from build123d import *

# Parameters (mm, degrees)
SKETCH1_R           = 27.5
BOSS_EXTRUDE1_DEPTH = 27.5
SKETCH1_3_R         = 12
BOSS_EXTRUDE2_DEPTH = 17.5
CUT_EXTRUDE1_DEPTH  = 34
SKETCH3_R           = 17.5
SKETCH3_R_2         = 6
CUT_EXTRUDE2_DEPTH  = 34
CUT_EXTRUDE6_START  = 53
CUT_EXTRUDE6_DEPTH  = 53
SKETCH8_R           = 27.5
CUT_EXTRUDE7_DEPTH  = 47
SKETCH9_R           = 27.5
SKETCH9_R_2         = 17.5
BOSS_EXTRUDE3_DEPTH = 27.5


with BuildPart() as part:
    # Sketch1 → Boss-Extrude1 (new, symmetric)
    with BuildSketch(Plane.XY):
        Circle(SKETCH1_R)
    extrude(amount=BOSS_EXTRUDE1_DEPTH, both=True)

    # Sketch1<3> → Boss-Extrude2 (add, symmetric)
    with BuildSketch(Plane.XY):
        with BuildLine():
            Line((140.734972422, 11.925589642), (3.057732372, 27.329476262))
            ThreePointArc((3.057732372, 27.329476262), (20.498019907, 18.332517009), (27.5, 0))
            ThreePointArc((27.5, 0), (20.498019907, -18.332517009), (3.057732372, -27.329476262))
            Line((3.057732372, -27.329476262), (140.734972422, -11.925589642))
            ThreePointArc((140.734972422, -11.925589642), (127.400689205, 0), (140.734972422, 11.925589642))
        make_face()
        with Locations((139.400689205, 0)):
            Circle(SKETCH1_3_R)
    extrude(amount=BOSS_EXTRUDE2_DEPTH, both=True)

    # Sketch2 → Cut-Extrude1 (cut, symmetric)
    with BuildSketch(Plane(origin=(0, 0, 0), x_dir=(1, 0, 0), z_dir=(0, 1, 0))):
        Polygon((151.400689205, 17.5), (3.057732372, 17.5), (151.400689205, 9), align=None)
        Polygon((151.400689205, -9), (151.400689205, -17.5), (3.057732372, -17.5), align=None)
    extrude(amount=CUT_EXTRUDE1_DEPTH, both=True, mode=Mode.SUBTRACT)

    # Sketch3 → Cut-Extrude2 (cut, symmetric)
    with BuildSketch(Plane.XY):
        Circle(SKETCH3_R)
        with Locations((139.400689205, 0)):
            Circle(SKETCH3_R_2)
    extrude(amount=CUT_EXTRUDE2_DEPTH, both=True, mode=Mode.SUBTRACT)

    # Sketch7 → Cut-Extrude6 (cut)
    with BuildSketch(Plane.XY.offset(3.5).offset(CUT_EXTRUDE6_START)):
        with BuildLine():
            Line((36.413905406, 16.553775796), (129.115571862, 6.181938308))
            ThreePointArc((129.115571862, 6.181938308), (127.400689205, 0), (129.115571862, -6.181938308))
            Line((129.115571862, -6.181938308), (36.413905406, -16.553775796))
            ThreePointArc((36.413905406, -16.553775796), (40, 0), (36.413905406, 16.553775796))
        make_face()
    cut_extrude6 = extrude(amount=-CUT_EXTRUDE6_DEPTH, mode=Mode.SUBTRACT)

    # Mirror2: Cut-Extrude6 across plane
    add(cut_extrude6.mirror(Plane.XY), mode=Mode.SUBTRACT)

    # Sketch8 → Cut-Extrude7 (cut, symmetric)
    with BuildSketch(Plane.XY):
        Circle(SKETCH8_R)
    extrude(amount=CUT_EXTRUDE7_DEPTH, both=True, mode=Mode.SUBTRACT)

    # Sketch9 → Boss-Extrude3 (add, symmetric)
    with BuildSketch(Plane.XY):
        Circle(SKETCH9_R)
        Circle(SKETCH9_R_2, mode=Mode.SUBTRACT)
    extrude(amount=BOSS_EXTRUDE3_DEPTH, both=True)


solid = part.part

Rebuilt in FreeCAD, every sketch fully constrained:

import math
import FreeCAD as App
import Part
import Sketcher
from FreeCAD import Vector


def add_polygon(sketch, points):
    """Adds a closed chain of lines whose ends are joined by coincident constraints."""
    first, n = sketch.GeometryCount, len(points)
    for a, b in zip(points, points[1:] + points[:1]):
        sketch.addGeometry(Part.LineSegment(App.Vector(*a, 0), App.Vector(*b, 0)), False)
    for i in range(n):
        sketch.addConstraint(Sketcher.Constraint("Coincident", first + i, 2, first + (i + 1) % n, 1))

doc = App.newDocument("Part")
body = doc.addObject("PartDesign::Body", "Body")

sketch1 = body.newObject("Sketcher::SketchObject", "Sketch")
sketch1.AttachmentSupport = (doc.getObject("XY_Plane"), [""])
sketch1.MapMode = "FlatFace"
sketch1.addGeometry(Part.Circle(Vector(0, 0, 0), Vector(0, 0, 1), 28), False)
sketch1.addConstraint([
    Sketcher.Constraint("Coincident", 0, 3, -1, 1),
    Sketcher.Constraint("Diameter", 0, 55.0),
])
pad1 = body.newObject("PartDesign::Pad", "Pad")
pad1.Profile = sketch1
pad1.Length = 55
pad1.Midplane = True

sketch2 = body.newObject("Sketcher::SketchObject", "Sketch001")
sketch2.AttachmentSupport = (doc.getObject("XY_Plane"), [""])
sketch2.MapMode = "FlatFace"
sketch2.addGeometry([
    Part.LineSegment(Vector(141, 12, 0), Vector(3, 27, 0)),
    Part.ArcOfCircle(Part.Circle(Vector(0, 0, 0), Vector(0, 0, 1), 28), math.radians(0), math.radians(84)),
    Part.ArcOfCircle(Part.Circle(Vector(0, 0, 0), Vector(0, 0, 1), 28), math.radians(-84), math.radians(0)),
    Part.LineSegment(Vector(3, -27, 0), Vector(141, -12, 0)),
    Part.ArcOfCircle(Part.Circle(Vector(139, 0, 0), Vector(0, 0, 1), 12), math.radians(-84), math.radians(84)),
], False)
sketch2.addConstraint([
    Sketcher.Constraint("Tangent", 0, 2, 1, 2),
    Sketcher.Constraint("Tangent", 1, 1, 2, 2),
    Sketcher.Constraint("Tangent", 2, 1, 3, 1),
    Sketcher.Constraint("Tangent", 3, 2, 4, 1),
    Sketcher.Constraint("Tangent", 4, 2, 0, 1),
    Sketcher.Constraint("Coincident", 1, 3, -1, 1),
    Sketcher.Constraint("Equal", 1, 2),
    Sketcher.Constraint("PointOnObject", 4, 3, -1),
    Sketcher.Constraint("PointOnObject", 1, 1, -1),
    Sketcher.Constraint("Radius", 4, 12.0),
    Sketcher.Constraint("Radius", 1, 27.5),
    Sketcher.Constraint("DistanceX", -1, 1, 4, 3, 139.400689),
])
pad2 = body.newObject("PartDesign::Pad", "Pad001")
pad2.Profile = sketch2
pad2.Length = 35
pad2.Midplane = True

sketch3 = body.newObject("Sketcher::SketchObject", "Sketch002")
sketch3.AttachmentSupport = (doc.getObject("XZ_Plane"), [""])
sketch3.MapMode = "FlatFace"
add_polygon(sketch3, [(151, -18), (3, -18), (151, -9)])
add_polygon(sketch3, [(151, 18), (151, 9), (3, 18)])
sketch3.addConstraint([
    Sketcher.Constraint("Horizontal", 0),
    Sketcher.Constraint("Vertical", 2),
    Sketcher.Constraint("Vertical", 3),
    Sketcher.Constraint("Horizontal", 5),
    Sketcher.Constraint("Symmetric", 1, 2, 3, 2, -1),
    Sketcher.Constraint("Symmetric", 0, 2, 4, 2, -1),
    Sketcher.Constraint("DistanceY", 2, 2, 2, 1, 8.5),
    Sketcher.Constraint("DistanceY", 1, 2, -1, 1, 9.0),
    Sketcher.Constraint("Distance", 1, 148.586281),
    Sketcher.Constraint("DistanceX", -1, 1, 1, 2, 151.400689),
])
pocket1 = body.newObject("PartDesign::Pocket", "Pocket")
pocket1.Profile = sketch3
pocket1.Length = 68
pocket1.Midplane = True

sketch4 = body.newObject("Sketcher::SketchObject", "Sketch003")
sketch4.AttachmentSupport = (doc.getObject("XY_Plane"), [""])
sketch4.MapMode = "FlatFace"
sketch4.addGeometry([
    Part.Circle(Vector(0, 0, 0), Vector(0, 0, 1), 18),
    Part.Circle(Vector(139, 0, 0), Vector(0, 0, 1), 6),
], False)
sketch4.addConstraint([
    Sketcher.Constraint("Coincident", 0, 3, -1, 1),
    Sketcher.Constraint("PointOnObject", 1, 3, -1),
    Sketcher.Constraint("Diameter", 0, 35.0),
    Sketcher.Constraint("Diameter", 1, 12.0),
    Sketcher.Constraint("DistanceX", -1, 1, 1, 3, 139.400689),
])
pocket2 = body.newObject("PartDesign::Pocket", "Pocket001")
pocket2.Profile = sketch4
pocket2.Length = 68
pocket2.Midplane = True

sketch5 = body.newObject("Sketcher::SketchObject", "Sketch004")
sketch5.AttachmentSupport = (doc.getObject("XY_Plane"), [""])
sketch5.MapMode = "FlatFace"
sketch5.AttachmentOffset = App.Placement(Vector(0, 0, 56.5), App.Rotation())
sketch5.addGeometry([
    Part.LineSegment(Vector(129, 6, 0), Vector(36, 17, 0)),
    Part.ArcOfCircle(Part.Circle(Vector(0, 0, 0), Vector(0, 0, 1), 40), math.radians(-24), math.radians(24)),
    Part.LineSegment(Vector(36, -17, 0), Vector(129, -6, 0)),
    Part.ArcOfCircle(Part.Circle(Vector(139, 0, 0), Vector(0, 0, 1), 12), math.radians(149), math.radians(211)),
], False)
sketch5.addConstraint([
    Sketcher.Constraint("Coincident", 0, 2, 1, 2),
    Sketcher.Constraint("Coincident", 1, 1, 2, 1),
    Sketcher.Constraint("Coincident", 2, 2, 3, 2),
    Sketcher.Constraint("Coincident", 3, 1, 0, 1),
    Sketcher.Constraint("Coincident", 1, 3, -1, 1),
    Sketcher.Constraint("Symmetric", 2, 2, 3, 1, -1),
    Sketcher.Constraint("Vertical", 0, 2, 1, 1),
    Sketcher.Constraint("Radius", 1, 40.0),
    Sketcher.Constraint("Radius", 3, 12.0),
    Sketcher.Constraint("DistanceX", -1, 1, 3, 3, 139.400689),
    Sketcher.Constraint("DistanceX", -1, 1, 2, 2, 129.115572),
    Sketcher.Constraint("DistanceY", 1, 1, 0, 2, 33.107552),
])
pocket3 = body.newObject("PartDesign::Pocket", "Pocket002")
pocket3.Profile = sketch5
pocket3.Length = 53
doc.recompute()

mirrored = body.newObject("PartDesign::Mirrored", "Mirrored")
mirrored.Originals = [pocket3]
mirrored.MirrorPlane = (doc.getObject("XY_Plane"), [""])
body.Tip = mirrored

sketch6 = body.newObject("Sketcher::SketchObject", "Sketch005")
sketch6.AttachmentSupport = (doc.getObject("XY_Plane"), [""])
sketch6.MapMode = "FlatFace"
sketch6.addGeometry(Part.Circle(Vector(0, 0, 0), Vector(0, 0, 1), 28), False)
sketch6.addConstraint([
    Sketcher.Constraint("Coincident", 0, 3, -1, 1),
    Sketcher.Constraint("Diameter", 0, 55.0),
])
pocket4 = body.newObject("PartDesign::Pocket", "Pocket003")
pocket4.Profile = sketch6
pocket4.Length = 94
pocket4.Midplane = True

sketch7 = body.newObject("Sketcher::SketchObject", "Sketch006")
sketch7.AttachmentSupport = (doc.getObject("XY_Plane"), [""])
sketch7.MapMode = "FlatFace"
sketch7.addGeometry([
    Part.Circle(Vector(0, 0, 0), Vector(0, 0, 1), 28),
    Part.Circle(Vector(0, 0, 0), Vector(0, 0, 1), 18),
], False)
sketch7.addConstraint([
    Sketcher.Constraint("Coincident", 0, 3, -1, 1),
    Sketcher.Constraint("Coincident", 1, 3, -1, 1),
    Sketcher.Constraint("Diameter", 0, 55.0),
    Sketcher.Constraint("Diameter", 1, 35.0),
])
pad3 = body.newObject("PartDesign::Pad", "Pad002")
pad3.Profile = sketch7
pad3.Length = 55
pad3.Midplane = True

doc.recompute()
